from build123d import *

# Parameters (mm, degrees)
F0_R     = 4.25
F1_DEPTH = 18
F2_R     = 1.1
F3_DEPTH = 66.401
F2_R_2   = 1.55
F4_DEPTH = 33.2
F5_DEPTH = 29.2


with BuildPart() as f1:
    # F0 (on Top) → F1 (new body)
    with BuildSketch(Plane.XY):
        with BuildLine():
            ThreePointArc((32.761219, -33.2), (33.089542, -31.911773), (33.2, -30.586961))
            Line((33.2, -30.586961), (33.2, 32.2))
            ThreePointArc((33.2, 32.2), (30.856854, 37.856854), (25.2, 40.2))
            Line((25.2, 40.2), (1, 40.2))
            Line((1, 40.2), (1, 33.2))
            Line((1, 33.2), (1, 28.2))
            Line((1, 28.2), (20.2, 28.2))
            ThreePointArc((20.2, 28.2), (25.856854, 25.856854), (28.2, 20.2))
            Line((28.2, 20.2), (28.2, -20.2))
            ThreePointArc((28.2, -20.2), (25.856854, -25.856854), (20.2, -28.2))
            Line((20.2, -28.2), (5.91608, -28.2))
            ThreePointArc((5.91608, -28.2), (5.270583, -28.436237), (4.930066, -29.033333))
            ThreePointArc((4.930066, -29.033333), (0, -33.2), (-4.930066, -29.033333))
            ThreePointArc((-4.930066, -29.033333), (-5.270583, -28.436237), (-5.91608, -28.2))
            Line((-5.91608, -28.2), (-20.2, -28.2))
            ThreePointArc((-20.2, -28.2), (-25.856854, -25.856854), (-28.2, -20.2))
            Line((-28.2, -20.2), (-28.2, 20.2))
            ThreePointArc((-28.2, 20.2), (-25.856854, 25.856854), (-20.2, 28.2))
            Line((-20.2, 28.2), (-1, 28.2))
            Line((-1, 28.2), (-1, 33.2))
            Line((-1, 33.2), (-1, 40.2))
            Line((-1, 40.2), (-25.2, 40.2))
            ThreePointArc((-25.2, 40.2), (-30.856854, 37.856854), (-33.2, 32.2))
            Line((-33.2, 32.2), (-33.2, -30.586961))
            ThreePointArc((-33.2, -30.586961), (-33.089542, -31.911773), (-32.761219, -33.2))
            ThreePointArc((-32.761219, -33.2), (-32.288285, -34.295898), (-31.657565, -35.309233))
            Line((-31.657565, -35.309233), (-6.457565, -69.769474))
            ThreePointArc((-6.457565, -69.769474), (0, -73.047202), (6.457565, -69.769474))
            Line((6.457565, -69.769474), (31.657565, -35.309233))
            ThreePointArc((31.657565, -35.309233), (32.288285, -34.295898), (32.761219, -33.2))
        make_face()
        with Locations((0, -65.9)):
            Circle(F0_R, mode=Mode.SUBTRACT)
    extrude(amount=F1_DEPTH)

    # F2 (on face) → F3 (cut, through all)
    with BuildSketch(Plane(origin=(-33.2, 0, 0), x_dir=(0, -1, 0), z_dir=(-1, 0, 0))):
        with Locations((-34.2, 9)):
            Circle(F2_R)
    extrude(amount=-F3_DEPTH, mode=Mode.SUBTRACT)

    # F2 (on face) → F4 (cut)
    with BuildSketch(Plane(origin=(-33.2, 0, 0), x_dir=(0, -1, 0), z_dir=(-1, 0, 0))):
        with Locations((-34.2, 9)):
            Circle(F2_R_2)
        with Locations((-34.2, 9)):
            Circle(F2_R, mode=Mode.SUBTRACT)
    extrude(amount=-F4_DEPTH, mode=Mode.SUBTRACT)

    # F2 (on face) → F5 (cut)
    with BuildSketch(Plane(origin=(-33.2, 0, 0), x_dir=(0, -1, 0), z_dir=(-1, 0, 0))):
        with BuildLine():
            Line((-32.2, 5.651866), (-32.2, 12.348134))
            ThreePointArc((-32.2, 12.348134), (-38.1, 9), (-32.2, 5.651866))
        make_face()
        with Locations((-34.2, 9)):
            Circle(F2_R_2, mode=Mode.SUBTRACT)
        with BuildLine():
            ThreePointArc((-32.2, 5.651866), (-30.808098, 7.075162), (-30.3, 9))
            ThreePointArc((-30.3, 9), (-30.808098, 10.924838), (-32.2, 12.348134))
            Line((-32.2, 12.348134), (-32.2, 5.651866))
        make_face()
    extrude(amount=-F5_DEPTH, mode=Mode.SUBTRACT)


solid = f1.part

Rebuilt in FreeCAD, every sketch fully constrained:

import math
import FreeCAD as App
import Part
import Sketcher
from FreeCAD import Vector

doc = App.newDocument("Part")
body = doc.addObject("PartDesign::Body", "Body")

# Sketch on XY plane
sketch1 = body.newObject("Sketcher::SketchObject", "Sketch")
sketch1.AttachmentSupport = (doc.getObject("XY_Plane"), [""])
sketch1.MapMode = "FlatFace"
sketch1.addGeometry([
    Part.ArcOfCircle(Part.Circle(Vector(25.2, -30.6, 0), Vector(0, 0, 1), 8), math.radians(-19.06), math.radians(0)),  # 0
    Part.LineSegment(Vector(33.2, -30.6, 0), Vector(33.2, 32.2, 0)),  # 1
    Part.ArcOfCircle(Part.Circle(Vector(25.2, 32.2, 0), Vector(0, 0, 1), 8), math.radians(0), math.radians(90)),  # 2
    Part.LineSegment(Vector(25.2, 40.2, 0), Vector(1, 40.2, 0)),  # 3
    Part.LineSegment(Vector(1, 40.2, 0), Vector(1, 28.2, 0)),  # 4
    Part.LineSegment(Vector(1, 28.2, 0), Vector(20.2, 28.2, 0)),  # 5
    Part.ArcOfCircle(Part.Circle(Vector(20.2, 20.2, 0), Vector(0, 0, 1), 8), math.radians(0), math.radians(90)),  # 6
    Part.LineSegment(Vector(28.2, 20.2, 0), Vector(28.2, -20.2, 0)),  # 7
    Part.ArcOfCircle(Part.Circle(Vector(20.2, -20.2, 0), Vector(0, 0, 1), 8), math.radians(-90), math.radians(0)),  # 8
    Part.LineSegment(Vector(20.2, -28.2, 0), Vector(5.9, -28.2, 0)),  # 9
    Part.ArcOfCircle(Part.Circle(Vector(5.9, -29.2, 0), Vector(0, 0, 1), 1), math.radians(90), math.radians(170)),  # 10
    Part.ArcOfCircle(Part.Circle(Vector(0, -28.2, 0), Vector(0, 0, 1), 5), math.radians(-170), math.radians(-10)),  # 11
    Part.ArcOfCircle(Part.Circle(Vector(-5.9, -29.2, 0), Vector(0, 0, 1), 1), math.radians(10), math.radians(90)),  # 12
    Part.LineSegment(Vector(-5.9, -28.2, 0), Vector(-20.2, -28.2, 0)),  # 13
    Part.ArcOfCircle(Part.Circle(Vector(-20.2, -20.2, 0), Vector(0, 0, 1), 8), math.radians(-180), math.radians(-90)),  # 14
    Part.LineSegment(Vector(-28.2, -20.2, 0), Vector(-28.2, 20.2, 0)),  # 15
    Part.ArcOfCircle(Part.Circle(Vector(-20.2, 20.2, 0), Vector(0, 0, 1), 8), math.radians(90), math.radians(180)),  # 16
    Part.LineSegment(Vector(-20.2, 28.2, 0), Vector(-1, 28.2, 0)),  # 17
    Part.LineSegment(Vector(-1, 28.2, 0), Vector(-1, 40.2, 0)),  # 18
    Part.LineSegment(Vector(-1, 40.2, 0), Vector(-25.2, 40.2, 0)),  # 19
    Part.ArcOfCircle(Part.Circle(Vector(-25.2, 32.2, 0), Vector(0, 0, 1), 8), math.radians(90), math.radians(180)),  # 20
    Part.LineSegment(Vector(-33.2, 32.2, 0), Vector(-33.2, -30.6, 0)),  # 21
    Part.ArcOfCircle(Part.Circle(Vector(-25.2, -30.6, 0), Vector(0, 0, 1), 8), math.radians(-180), math.radians(-160.94)),  # 22
    Part.ArcOfCircle(Part.Circle(Vector(-25.2, -30.6, 0), Vector(0, 0, 1), 8), math.radians(-160.94), math.radians(-143.82)),  # 23
    Part.LineSegment(Vector(-31.7, -35.3, 0), Vector(-6.5, -69.8, 0)),  # 24
    Part.ArcOfCircle(Part.Circle(Vector(0, -65, 0), Vector(0, 0, 1), 8), math.radians(-144), math.radians(-36)),  # 25
    Part.LineSegment(Vector(6.5, -69.8, 0), Vector(31.7, -35.3, 0)),  # 26
    Part.ArcOfCircle(Part.Circle(Vector(25.2, -30.6, 0), Vector(0, 0, 1), 8), math.radians(-36.18), math.radians(-19.06)),  # 27
    Part.Circle(Vector(0, -65.9, 0), Vector(0, 0, 1), 4.2),  # 28
], False)
sketch1.addConstraint([
    Sketcher.Constraint("Tangent", 0, 2, 1, 1),
    Sketcher.Constraint("Tangent", 1, 2, 2, 1),
    Sketcher.Constraint("Tangent", 2, 2, 3, 1),
    Sketcher.Constraint("Coincident", 3, 2, 4, 1),
    Sketcher.Constraint("Coincident", 4, 2, 5, 1),
    Sketcher.Constraint("Tangent", 5, 2, 6, 2),
    Sketcher.Constraint("Tangent", 6, 1, 7, 1),
    Sketcher.Constraint("Tangent", 7, 2, 8, 2),
    Sketcher.Constraint("Tangent", 8, 1, 9, 1),
    Sketcher.Constraint("Tangent", 9, 2, 10, 1),
    Sketcher.Constraint("Tangent", 10, 2, 11, 2),
    Sketcher.Constraint("Tangent", 11, 1, 12, 1),
    Sketcher.Constraint("Tangent", 12, 2, 13, 1),
    Sketcher.Constraint("Tangent", 13, 2, 14, 2),
    Sketcher.Constraint("Tangent", 14, 1, 15, 1),
    Sketcher.Constraint("Tangent", 15, 2, 16, 2),
    Sketcher.Constraint("Tangent", 16, 1, 17, 1),
    Sketcher.Constraint("Coincident", 17, 2, 18, 1),
    Sketcher.Constraint("Coincident", 18, 2, 19, 1),
    Sketcher.Constraint("Tangent", 19, 2, 20, 1),
    Sketcher.Constraint("Tangent", 20, 2, 21, 1),
    Sketcher.Constraint("Tangent", 21, 2, 22, 1),
    Sketcher.Constraint("Tangent", 22, 2, 23, 1),
    Sketcher.Constraint("Tangent", 23, 2, 24, 1),
    Sketcher.Constraint("Tangent", 24, 2, 25, 1),
    Sketcher.Constraint("Tangent", 25, 2, 26, 1),
    Sketcher.Constraint("Tangent", 26, 2, 27, 1),
    Sketcher.Constraint("Tangent", 27, 2, 0, 1),
    Sketcher.Constraint("Vertical", 1),
    Sketcher.Constraint("Horizontal", 3),
    Sketcher.Constraint("Vertical", 4),
    Sketcher.Constraint("Horizontal", 5),
    Sketcher.Constraint("Vertical", 7),
    Sketcher.Constraint("Horizontal", 9),
    Sketcher.Constraint("Horizontal", 13),
    Sketcher.Constraint("Vertical", 15),
    Sketcher.Constraint("Horizontal", 17),
    Sketcher.Constraint("Vertical", 18),
    Sketcher.Constraint("Horizontal", 19),
    Sketcher.Constraint("Vertical", 21),
    Sketcher.Constraint("Equal", 2, 6),
    Sketcher.Constraint("Equal", 6, 8),
    Sketcher.Constraint("Equal", 10, 12),
    Sketcher.Constraint("Equal", 8, 14),
    Sketcher.Constraint("Equal", 14, 16),
    Sketcher.Constraint("Equal", 16, 20),
    Sketcher.Constraint("Equal", 0, 22),
    Sketcher.Constraint("Equal", 20, 25),
    Sketcher.Constraint("Equal", 23, 27),
    Sketcher.Constraint("Symmetric", 6, 3, 14, 3, -1, 1),
    Sketcher.Constraint("Symmetric", 10, 3, 12, 3, -2),
    Sketcher.Constraint("Symmetric", 2, 3, 20, 3, -2),
    Sketcher.Constraint("Symmetric", 4, 2, 17, 2, -2),
    Sketcher.Constraint("Symmetric", 24, 2, 25, 2, -2),
    Sketcher.Constraint("PointOnObject", 28, 3, -2),
    Sketcher.Constraint("Horizontal", 11, 3, 8, 1),
    Sketcher.Constraint("Horizontal", 22, 2, 27, 2),
    Sketcher.Constraint("Radius", 2, 8.000001),
    Sketcher.Constraint("Radius", 10, 1.000001),
    Sketcher.Constraint("Radius", 11, 4.999999),
    Sketcher.Constraint("Diameter", 28, 8.5),
    Sketcher.Constraint("DistanceY", 4, 2, 4, 1, 12.0),
    Sketcher.Constraint("DistanceX", 3, 2, 3, 1, 24.2),
    Sketcher.Constraint("DistanceX", 5, 1, 5, 2, 19.2),
    Sketcher.Constraint("DistanceY", 7, 2, 7, 1, 40.4),
    Sketcher.Constraint("DistanceX", -1, 1, 3, 2, 1.0),
    Sketcher.Constraint("DistanceY", 22, 2, 13, 2, 5.0),
    Sketcher.Constraint("DistanceY", 28, 3, -1, 1, 65.9),
    Sketcher.Constraint("Radius", 0, 8.000014),
    Sketcher.Constraint("Radius", 23, 8.000023),
    Sketcher.Constraint("DistanceY", 1, 1, 1, 2, 62.786961),
    Sketcher.Constraint("DistanceY", 25, 3, 10, 3, 35.847201),
])
pad1 = body.newObject("PartDesign::Pad", "Pad")
pad1.Profile = sketch1
pad1.Length = 18

# Sketch on YZ plane
sketch2 = body.newObject("Sketcher::SketchObject", "Sketch001")
sketch2.AttachmentSupport = (doc.getObject("YZ_Plane"), [""])
sketch2.MapMode = "FlatFace"
sketch2.AttachmentOffset = App.Placement(Vector(0, 0, -33.2), App.Rotation())
sketch2.addGeometry(Part.Circle(Vector(34.2, 9, 0), Vector(0, 0, 1), 1.1), False)
sketch2.addConstraint([
    Sketcher.Constraint("Diameter", 0, 2.2),
    Sketcher.Constraint("DistanceY", -1, 1, 0, 3, 9.0),
    Sketcher.Constraint("DistanceX", -1, 1, 0, 3, 34.2),
])
pocket1 = body.newObject("PartDesign::Pocket", "Pocket")
pocket1.Profile = sketch2
pocket1.Type = "ThroughAll"
pocket1.Reversed = True

# Sketch on YZ plane
sketch3 = body.newObject("Sketcher::SketchObject", "Sketch002")
sketch3.AttachmentSupport = (doc.getObject("YZ_Plane"), [""])
sketch3.MapMode = "FlatFace"
sketch3.AttachmentOffset = App.Placement(Vector(0, 0, -33.2), App.Rotation())
sketch3.addGeometry([
    Part.Circle(Vector(34.2, 9, 0), Vector(0, 0, 1), 1.6),
    Part.Circle(Vector(34.2, 9, 0), Vector(0, 0, 1), 1.1),
], False)
sketch3.addConstraint([
    Sketcher.Constraint("Coincident", 1, 3, 0, 3),
    Sketcher.Constraint("Diameter", 0, 3.1),
    Sketcher.Constraint("Diameter", 1, 2.2),
    Sketcher.Constraint("DistanceY", -1, 1, 0, 3, 9.0),
    Sketcher.Constraint("DistanceX", -1, 1, 0, 3, 34.2),
])
pocket2 = body.newObject("PartDesign::Pocket", "Pocket001")
pocket2.Profile = sketch3
pocket2.Length = 33.2
pocket2.Reversed = True

# Sketch on YZ plane
sketch4 = body.newObject("Sketcher::SketchObject", "Sketch003")
sketch4.AttachmentSupport = (doc.getObject("YZ_Plane"), [""])
sketch4.MapMode = "FlatFace"
sketch4.AttachmentOffset = App.Placement(Vector(0, 0, -33.2), App.Rotation())
sketch4.addGeometry([
    Part.ArcOfCircle(Part.Circle(Vector(34.2, 9, 0), Vector(0, 0, 1), 3.9), math.radians(-121), math.radians(121)),
    Part.ArcOfCircle(Part.Circle(Vector(34.2, 9, 0), Vector(0, 0, 1), 3.9), math.radians(180), math.radians(239)),
    Part.ArcOfCircle(Part.Circle(Vector(34.2, 9, 0), Vector(0, 0, 1), 3.9), math.radians(121), math.radians(180)),
    Part.Circle(Vector(34.2, 9, 0), Vector(0, 0, 1), 1.6),
], False)
sketch4.addConstraint([
    Sketcher.Constraint("Tangent", 0, 1, 1, 2),
    Sketcher.Constraint("Tangent", 1, 1, 2, 2),
    Sketcher.Constraint("Tangent", 2, 1, 0, 2),
    Sketcher.Constraint("Coincident", 3, 3, 0, 3),
    Sketcher.Constraint("Horizontal", 3, 3, 1, 1),
    Sketcher.Constraint("Vertical", 0, 1, 2, 1),
    Sketcher.Constraint("Diameter", 3, 3.1),
    Sketcher.Constraint("Radius", 0, 3.9),
    Sketcher.Constraint("DistanceY", -1, 1, 0, 3, 9.0),
    Sketcher.Constraint("DistanceX", 0, 1, 0, 3, 2.0),
    Sketcher.Constraint("DistanceX", -1, 1, 0, 3, 34.2),
])
pocket3 = body.newObject("PartDesign::Pocket", "Pocket002")
pocket3.Profile = sketch4
pocket3.Length = 29.2
pocket3.Reversed = True

doc.recompute()
